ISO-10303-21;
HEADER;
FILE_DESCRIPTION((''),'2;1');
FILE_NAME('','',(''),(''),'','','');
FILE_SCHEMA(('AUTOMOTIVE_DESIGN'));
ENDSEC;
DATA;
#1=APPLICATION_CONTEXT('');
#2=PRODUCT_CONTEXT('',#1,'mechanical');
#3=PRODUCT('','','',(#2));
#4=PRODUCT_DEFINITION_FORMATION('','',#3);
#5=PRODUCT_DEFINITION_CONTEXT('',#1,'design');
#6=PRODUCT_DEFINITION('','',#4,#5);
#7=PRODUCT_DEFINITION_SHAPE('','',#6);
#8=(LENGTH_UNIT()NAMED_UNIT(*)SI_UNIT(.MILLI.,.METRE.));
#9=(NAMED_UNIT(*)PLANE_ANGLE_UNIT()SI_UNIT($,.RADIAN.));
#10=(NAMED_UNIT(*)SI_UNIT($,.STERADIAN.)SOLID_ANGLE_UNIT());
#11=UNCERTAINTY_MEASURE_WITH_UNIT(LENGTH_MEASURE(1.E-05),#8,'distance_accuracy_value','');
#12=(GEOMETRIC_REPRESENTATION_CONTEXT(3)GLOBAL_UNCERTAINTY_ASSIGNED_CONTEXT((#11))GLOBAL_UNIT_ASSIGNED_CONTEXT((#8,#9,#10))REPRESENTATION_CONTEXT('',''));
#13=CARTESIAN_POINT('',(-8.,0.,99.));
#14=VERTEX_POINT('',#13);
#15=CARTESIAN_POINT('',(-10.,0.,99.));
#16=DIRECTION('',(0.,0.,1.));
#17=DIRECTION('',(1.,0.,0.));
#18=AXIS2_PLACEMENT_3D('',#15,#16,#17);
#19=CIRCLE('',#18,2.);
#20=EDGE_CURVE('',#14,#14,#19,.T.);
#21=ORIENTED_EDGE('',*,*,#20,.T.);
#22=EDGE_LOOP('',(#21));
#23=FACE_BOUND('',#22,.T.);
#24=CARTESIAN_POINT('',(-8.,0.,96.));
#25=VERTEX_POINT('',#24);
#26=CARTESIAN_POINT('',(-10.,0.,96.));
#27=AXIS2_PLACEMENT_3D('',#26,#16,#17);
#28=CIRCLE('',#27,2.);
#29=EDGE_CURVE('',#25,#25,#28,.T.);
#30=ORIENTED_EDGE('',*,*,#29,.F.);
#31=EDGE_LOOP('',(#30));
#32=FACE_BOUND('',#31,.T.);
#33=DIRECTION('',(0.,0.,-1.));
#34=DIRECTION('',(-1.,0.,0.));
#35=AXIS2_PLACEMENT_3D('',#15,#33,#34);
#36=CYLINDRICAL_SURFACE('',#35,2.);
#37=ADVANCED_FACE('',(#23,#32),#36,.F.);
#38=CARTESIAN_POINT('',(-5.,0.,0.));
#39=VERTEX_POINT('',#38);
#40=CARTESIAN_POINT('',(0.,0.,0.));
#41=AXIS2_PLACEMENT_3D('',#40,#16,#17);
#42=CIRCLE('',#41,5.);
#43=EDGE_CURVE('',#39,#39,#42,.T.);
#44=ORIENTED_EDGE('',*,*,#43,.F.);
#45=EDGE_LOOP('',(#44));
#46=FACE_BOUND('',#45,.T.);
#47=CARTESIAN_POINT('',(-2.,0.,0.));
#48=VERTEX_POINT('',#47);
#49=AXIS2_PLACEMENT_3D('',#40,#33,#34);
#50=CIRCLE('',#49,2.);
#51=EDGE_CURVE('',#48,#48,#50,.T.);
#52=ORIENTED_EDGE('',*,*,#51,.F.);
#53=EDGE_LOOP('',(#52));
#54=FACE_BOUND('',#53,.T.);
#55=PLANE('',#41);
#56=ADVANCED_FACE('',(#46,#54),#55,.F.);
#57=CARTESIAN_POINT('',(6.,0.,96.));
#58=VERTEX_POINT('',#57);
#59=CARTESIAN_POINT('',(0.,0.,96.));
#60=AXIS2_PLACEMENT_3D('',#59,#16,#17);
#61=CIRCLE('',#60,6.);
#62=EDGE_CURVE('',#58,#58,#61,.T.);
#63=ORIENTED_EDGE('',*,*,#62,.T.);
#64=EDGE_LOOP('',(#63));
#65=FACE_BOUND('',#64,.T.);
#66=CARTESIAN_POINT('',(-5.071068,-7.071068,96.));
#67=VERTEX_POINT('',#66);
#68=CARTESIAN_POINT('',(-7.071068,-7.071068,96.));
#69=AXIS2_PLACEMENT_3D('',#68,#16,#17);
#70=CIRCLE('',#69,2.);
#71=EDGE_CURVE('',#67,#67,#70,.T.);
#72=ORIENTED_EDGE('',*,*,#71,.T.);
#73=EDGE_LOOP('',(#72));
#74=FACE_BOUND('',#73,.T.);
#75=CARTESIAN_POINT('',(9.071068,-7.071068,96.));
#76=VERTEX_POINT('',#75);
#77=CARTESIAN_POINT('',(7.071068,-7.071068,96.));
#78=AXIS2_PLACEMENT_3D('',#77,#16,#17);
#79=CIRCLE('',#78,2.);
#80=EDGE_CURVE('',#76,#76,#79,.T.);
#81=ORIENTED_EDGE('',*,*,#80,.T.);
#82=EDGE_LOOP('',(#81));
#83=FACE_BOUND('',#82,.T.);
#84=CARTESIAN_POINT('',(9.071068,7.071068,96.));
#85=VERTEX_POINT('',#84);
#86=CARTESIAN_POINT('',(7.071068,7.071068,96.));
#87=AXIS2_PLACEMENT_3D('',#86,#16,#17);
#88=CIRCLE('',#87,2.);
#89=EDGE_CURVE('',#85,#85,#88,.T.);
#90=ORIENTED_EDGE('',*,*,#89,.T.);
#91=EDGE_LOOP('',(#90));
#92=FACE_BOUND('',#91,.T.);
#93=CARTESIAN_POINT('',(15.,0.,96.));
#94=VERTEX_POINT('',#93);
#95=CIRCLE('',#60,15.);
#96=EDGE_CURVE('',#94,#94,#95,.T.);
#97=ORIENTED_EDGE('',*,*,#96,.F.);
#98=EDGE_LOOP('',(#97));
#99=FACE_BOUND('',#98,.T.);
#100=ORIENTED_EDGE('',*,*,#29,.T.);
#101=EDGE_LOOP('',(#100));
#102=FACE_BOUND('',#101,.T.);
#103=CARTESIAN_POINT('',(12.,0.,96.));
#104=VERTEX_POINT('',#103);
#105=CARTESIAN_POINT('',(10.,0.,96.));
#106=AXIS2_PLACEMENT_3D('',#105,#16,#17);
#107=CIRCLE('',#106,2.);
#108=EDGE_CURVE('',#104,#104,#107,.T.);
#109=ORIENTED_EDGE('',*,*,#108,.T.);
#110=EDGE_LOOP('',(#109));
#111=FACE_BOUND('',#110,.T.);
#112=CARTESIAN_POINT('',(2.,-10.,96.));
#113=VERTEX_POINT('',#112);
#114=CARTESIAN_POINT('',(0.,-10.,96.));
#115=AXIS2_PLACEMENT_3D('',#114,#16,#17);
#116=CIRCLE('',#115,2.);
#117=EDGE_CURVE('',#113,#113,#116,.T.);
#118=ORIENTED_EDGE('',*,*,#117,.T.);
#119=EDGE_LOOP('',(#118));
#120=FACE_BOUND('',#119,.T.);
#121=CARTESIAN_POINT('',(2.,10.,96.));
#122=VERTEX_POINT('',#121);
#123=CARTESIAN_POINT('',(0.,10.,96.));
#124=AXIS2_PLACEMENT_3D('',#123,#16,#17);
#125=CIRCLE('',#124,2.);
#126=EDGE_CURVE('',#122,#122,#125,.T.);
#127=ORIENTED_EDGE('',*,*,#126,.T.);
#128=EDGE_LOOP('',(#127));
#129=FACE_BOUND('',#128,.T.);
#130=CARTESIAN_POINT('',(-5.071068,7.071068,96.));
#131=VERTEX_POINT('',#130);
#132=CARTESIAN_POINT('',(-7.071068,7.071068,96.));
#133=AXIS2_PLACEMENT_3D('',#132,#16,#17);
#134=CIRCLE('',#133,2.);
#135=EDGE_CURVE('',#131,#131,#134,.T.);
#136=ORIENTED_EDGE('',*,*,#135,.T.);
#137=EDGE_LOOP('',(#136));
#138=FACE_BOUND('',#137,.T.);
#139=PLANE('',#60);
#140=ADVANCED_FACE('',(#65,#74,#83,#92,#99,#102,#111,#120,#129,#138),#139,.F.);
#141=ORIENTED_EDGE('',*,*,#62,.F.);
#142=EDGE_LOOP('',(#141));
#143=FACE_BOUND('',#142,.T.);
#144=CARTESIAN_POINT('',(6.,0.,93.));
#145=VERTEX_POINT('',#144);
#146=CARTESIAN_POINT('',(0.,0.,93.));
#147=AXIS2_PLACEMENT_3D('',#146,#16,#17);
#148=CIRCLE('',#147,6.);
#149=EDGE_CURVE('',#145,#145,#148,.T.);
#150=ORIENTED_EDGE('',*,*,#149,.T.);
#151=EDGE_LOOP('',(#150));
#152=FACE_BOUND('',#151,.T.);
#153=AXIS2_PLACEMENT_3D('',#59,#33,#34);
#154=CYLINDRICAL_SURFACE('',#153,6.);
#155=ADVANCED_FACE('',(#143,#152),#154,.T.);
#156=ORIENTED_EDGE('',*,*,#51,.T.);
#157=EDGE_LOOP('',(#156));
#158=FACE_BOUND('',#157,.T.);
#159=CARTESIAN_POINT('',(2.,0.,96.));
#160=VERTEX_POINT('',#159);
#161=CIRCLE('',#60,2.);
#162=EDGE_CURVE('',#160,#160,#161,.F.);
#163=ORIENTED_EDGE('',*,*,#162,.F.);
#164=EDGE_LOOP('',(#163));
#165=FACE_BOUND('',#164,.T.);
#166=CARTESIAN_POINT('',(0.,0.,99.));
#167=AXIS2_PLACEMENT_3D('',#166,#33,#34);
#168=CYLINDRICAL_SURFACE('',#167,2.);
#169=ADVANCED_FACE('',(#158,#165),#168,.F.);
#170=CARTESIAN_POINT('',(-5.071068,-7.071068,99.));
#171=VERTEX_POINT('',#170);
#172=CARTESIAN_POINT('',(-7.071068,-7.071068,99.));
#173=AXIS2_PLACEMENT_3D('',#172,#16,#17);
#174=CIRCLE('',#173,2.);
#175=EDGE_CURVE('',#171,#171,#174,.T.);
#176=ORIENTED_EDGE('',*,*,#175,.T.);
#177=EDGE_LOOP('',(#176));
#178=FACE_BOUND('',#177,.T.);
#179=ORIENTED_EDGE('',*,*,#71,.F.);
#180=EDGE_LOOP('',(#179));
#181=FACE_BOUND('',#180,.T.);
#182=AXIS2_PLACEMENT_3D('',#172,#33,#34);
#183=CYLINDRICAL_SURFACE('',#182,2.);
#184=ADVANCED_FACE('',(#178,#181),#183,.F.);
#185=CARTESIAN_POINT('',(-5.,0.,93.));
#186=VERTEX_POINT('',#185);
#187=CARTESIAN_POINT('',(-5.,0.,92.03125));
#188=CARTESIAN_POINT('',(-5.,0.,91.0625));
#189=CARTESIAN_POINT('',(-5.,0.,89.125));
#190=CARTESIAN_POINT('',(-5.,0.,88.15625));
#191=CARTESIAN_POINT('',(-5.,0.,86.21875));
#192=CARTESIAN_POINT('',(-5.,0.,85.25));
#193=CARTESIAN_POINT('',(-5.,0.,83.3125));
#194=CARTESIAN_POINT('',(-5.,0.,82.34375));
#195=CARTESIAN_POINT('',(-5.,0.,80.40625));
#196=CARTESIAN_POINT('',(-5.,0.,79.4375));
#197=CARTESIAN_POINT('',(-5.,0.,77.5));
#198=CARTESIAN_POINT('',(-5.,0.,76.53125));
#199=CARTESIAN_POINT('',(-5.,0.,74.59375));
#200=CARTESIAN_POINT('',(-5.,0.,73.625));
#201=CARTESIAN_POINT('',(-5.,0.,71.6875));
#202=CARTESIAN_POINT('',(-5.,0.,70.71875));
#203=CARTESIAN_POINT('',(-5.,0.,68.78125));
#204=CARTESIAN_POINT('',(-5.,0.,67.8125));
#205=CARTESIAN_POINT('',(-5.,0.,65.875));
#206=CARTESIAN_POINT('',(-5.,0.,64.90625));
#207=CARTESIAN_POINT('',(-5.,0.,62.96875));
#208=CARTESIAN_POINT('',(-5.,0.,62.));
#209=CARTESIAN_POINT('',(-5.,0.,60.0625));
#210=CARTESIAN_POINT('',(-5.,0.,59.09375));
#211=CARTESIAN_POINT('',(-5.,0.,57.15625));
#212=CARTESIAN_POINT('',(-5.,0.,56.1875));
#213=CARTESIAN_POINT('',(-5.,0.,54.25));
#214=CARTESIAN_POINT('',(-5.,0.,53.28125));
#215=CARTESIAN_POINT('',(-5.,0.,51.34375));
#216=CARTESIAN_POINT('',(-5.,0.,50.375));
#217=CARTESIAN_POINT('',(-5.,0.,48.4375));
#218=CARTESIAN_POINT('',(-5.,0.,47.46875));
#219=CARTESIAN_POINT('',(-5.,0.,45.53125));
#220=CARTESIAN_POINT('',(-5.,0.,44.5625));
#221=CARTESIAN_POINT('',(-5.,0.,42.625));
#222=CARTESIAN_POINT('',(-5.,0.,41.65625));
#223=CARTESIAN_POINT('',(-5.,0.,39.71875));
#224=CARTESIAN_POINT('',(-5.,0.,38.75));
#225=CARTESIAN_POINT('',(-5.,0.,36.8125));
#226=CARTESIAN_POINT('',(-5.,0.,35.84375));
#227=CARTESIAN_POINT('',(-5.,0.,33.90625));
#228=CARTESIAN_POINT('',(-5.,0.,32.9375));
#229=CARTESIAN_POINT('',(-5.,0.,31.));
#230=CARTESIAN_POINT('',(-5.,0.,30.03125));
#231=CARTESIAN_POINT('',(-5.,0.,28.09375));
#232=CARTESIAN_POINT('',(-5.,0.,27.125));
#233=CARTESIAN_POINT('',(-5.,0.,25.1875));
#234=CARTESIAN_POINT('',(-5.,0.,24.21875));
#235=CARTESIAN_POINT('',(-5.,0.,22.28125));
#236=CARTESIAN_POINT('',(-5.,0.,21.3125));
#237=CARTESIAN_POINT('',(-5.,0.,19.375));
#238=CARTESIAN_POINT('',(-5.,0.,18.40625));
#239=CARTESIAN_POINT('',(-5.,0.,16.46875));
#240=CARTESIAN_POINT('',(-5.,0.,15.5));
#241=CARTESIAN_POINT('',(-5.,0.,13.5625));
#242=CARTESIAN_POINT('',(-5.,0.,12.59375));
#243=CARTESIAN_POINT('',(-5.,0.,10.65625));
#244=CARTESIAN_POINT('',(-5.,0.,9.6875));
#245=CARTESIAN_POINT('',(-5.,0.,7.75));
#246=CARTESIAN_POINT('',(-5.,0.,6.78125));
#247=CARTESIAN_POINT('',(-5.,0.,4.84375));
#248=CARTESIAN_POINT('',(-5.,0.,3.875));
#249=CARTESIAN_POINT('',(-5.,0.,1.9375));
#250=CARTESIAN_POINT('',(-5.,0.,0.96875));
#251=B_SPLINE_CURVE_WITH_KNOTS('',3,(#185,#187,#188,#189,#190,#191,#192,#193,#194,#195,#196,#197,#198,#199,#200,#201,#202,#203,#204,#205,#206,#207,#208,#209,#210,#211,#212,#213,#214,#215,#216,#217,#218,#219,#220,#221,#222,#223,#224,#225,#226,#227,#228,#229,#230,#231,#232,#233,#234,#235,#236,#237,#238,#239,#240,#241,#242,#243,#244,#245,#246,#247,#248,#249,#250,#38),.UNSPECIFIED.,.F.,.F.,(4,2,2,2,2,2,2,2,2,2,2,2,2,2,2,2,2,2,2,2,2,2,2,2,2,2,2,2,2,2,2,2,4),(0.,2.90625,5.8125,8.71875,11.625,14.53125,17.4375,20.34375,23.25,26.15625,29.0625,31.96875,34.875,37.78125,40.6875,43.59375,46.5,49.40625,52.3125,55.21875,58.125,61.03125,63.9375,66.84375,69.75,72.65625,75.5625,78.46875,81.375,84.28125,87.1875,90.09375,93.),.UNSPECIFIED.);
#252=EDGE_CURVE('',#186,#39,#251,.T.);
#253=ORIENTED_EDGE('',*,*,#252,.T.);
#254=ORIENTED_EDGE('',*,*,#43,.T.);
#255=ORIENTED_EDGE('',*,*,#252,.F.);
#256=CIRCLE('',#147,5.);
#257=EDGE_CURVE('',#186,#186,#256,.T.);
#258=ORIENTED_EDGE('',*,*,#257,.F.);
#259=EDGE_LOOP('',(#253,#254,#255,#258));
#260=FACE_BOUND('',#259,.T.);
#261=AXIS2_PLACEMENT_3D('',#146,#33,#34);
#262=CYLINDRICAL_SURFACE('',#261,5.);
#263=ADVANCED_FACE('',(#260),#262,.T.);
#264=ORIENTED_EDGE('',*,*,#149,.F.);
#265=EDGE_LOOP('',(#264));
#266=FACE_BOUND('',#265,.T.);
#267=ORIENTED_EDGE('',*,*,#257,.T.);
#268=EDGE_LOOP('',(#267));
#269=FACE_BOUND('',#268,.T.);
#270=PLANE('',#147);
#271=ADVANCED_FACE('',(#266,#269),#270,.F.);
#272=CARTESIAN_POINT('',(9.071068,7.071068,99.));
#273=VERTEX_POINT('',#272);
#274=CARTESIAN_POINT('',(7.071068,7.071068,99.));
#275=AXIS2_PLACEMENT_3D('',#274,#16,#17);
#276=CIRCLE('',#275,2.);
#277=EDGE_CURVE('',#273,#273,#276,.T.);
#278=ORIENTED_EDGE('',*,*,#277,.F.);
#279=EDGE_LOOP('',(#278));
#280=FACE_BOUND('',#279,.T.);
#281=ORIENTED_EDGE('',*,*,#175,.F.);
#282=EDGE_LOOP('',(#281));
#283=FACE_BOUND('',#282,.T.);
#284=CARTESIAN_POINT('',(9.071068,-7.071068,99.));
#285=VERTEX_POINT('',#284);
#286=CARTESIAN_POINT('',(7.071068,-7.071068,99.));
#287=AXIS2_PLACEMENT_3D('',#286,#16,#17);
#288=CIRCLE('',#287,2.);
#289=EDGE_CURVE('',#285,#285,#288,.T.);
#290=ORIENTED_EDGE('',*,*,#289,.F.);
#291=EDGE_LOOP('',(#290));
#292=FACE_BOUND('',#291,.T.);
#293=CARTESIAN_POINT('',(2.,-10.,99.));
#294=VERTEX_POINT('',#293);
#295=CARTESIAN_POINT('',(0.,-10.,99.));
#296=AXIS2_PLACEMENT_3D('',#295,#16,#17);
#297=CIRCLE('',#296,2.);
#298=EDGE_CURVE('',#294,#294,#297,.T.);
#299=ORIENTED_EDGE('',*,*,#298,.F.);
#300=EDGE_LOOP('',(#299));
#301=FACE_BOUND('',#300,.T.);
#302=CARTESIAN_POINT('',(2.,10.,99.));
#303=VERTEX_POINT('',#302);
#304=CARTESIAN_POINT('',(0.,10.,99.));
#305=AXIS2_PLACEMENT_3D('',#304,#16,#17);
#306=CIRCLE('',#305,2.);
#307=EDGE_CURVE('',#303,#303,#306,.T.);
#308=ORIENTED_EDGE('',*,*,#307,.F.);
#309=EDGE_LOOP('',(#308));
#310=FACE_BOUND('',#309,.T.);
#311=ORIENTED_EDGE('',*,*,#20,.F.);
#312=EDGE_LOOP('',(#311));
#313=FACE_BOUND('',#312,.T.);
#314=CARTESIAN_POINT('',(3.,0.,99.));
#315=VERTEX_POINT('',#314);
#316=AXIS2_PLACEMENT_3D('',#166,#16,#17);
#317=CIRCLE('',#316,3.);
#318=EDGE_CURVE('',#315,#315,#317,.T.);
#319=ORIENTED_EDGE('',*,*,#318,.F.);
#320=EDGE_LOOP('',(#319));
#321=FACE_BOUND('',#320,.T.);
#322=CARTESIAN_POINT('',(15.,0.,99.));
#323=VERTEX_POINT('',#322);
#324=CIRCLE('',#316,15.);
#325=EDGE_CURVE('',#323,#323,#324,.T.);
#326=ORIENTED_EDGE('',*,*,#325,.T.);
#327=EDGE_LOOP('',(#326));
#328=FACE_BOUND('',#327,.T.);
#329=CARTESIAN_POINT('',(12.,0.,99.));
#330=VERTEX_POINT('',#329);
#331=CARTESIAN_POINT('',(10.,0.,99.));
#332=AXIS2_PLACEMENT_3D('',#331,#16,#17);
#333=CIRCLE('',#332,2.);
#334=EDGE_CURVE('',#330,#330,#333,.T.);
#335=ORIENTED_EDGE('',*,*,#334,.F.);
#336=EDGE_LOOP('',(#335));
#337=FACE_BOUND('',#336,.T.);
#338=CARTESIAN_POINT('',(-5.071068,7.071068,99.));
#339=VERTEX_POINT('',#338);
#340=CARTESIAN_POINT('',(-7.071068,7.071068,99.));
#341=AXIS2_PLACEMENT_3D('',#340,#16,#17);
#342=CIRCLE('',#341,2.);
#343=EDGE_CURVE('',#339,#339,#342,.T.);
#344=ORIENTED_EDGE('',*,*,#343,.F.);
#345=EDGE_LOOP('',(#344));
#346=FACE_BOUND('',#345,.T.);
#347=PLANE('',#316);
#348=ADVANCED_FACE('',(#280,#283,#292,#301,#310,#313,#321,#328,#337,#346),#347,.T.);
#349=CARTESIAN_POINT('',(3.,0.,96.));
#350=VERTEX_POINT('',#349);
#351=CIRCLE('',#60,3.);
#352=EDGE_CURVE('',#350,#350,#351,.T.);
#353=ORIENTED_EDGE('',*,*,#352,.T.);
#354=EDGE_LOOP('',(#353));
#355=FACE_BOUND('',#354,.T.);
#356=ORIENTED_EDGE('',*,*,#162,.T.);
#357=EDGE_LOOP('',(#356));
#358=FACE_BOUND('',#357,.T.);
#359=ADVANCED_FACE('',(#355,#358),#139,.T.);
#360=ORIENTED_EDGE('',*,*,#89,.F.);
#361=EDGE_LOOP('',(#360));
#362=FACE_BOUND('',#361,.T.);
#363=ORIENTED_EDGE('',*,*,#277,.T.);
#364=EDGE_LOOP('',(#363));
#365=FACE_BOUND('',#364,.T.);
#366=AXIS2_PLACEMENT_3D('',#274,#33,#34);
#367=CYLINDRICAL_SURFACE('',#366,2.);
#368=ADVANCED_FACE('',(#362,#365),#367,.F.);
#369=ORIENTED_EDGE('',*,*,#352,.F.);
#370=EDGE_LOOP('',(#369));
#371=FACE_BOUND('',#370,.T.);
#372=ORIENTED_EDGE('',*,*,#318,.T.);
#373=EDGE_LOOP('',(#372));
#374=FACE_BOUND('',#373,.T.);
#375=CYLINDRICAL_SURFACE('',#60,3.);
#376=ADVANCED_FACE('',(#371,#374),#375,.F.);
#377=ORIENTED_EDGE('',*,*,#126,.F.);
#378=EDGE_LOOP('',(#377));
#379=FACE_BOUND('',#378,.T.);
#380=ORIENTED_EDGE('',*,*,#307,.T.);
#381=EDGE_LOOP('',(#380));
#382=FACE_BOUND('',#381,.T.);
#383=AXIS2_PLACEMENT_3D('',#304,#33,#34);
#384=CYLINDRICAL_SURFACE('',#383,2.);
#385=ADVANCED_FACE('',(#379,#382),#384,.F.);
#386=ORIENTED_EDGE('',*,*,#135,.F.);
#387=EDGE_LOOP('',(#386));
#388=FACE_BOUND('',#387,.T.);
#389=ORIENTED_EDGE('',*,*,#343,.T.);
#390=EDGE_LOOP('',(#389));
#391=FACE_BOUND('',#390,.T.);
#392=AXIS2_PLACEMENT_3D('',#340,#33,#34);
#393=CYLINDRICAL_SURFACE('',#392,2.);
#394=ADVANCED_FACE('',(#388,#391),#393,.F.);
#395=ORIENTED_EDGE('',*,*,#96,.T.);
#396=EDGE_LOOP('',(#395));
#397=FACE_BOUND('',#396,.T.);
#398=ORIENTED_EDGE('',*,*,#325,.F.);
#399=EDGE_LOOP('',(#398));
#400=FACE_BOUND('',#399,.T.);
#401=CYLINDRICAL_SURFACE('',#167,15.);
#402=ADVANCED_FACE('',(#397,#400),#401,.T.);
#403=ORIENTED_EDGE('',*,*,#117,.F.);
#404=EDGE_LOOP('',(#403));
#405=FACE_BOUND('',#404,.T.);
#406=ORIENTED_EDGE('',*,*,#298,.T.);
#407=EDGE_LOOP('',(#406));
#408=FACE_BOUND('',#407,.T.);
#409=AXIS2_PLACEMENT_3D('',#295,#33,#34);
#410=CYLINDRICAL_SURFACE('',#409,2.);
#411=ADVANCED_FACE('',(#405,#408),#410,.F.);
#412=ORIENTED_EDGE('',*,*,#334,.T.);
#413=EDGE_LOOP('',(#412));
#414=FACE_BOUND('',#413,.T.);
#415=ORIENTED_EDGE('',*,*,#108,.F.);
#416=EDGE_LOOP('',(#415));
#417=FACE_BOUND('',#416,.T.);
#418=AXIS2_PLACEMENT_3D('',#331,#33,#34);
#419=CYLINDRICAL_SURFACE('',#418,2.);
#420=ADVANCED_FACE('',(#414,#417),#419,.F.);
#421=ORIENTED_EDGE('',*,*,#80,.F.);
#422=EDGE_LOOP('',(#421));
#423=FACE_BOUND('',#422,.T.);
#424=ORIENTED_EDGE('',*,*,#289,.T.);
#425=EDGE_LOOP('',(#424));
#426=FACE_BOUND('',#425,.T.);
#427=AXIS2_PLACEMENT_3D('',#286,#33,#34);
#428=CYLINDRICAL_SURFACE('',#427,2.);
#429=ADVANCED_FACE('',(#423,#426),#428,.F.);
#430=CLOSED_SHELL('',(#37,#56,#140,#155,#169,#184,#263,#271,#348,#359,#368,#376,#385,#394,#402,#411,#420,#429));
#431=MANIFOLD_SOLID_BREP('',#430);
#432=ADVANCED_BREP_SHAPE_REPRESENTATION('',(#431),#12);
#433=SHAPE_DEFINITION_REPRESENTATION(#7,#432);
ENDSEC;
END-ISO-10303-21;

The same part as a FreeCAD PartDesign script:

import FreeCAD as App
import Part
import Sketcher
Q = App.Units.Quantity

doc = App.newDocument("Part")
body = doc.addObject("PartDesign::Body", "Body")

# Sketch on XY plane
sketch1 = body.newObject("Sketcher::SketchObject", "Sketch")
sketch1.AttachmentSupport = (doc.getObject("XY_Plane"), [""])
sketch1.MapMode = "FlatFace"
sketch1.addGeometry(Part.Circle(App.Vector(0, 0, 0), App.Vector(0, 0, 1), 5), False)
sketch1.addConstraint(Sketcher.Constraint("Coincident", 0, 3, -1, 1))
sketch1.addConstraint(Sketcher.Constraint("Diameter", 0, Q("10 mm")))
pad1 = body.newObject("PartDesign::Pad", "Pad")
pad1.Profile = sketch1
pad1.Length = 93

# Sketch on XY plane
sketch2 = body.newObject("Sketcher::SketchObject", "Sketch001")
sketch2.AttachmentSupport = (doc.getObject("XY_Plane"), [""])
sketch2.MapMode = "FlatFace"
sketch2.AttachmentOffset = App.Placement(App.Vector(0, 0, 93), App.Rotation())
sketch2.addGeometry(Part.Circle(App.Vector(0, 0, 0), App.Vector(0, 0, 1), 6), False)
sketch2.addConstraint(Sketcher.Constraint("Coincident", 0, 3, -1, 1))
sketch2.addConstraint(Sketcher.Constraint("Diameter", 0, Q("12 mm")))
pad2 = body.newObject("PartDesign::Pad", "Pad001")
pad2.Profile = sketch2
pad2.Length = 3

# Sketch on XY plane
sketch3 = body.newObject("Sketcher::SketchObject", "Sketch002")
sketch3.AttachmentSupport = (doc.getObject("XY_Plane"), [""])
sketch3.MapMode = "FlatFace"
sketch3.AttachmentOffset = App.Placement(App.Vector(0, 0, 96), App.Rotation())
sketch3.addGeometry(Part.Circle(App.Vector(0, 0, 0), App.Vector(0, 0, 1), 15), False)
sketch3.addGeometry(Part.Circle(App.Vector(-7.1, -7.1, 0), App.Vector(0, 0, 1), 2), False)
sketch3.addGeometry(Part.Circle(App.Vector(0, -10, 0), App.Vector(0, 0, 1), 2), False)
sketch3.addGeometry(Part.Circle(App.Vector(7.1, -7.1, 0), App.Vector(0, 0, 1), 2), False)
sketch3.addGeometry(Part.Circle(App.Vector(-10, 0, 0), App.Vector(0, 0, 1), 2), False)
sketch3.addGeometry(Part.Circle(App.Vector(-7.1, 7.1, 0), App.Vector(0, 0, 1), 2), False)
sketch3.addGeometry(Part.Circle(App.Vector(10, 0, 0), App.Vector(0, 0, 1), 2), False)
sketch3.addGeometry(Part.Circle(App.Vector(0, 10, 0), App.Vector(0, 0, 1), 2), False)
sketch3.addGeometry(Part.Circle(App.Vector(7.1, 7.1, 0), App.Vector(0, 0, 1), 2), False)
sketch3.addConstraint(Sketcher.Constraint("Coincident", 0, 3, -1, 1))
sketch3.addConstraint(Sketcher.Constraint("Equal", 1, 2))
sketch3.addConstraint(Sketcher.Constraint("Equal", 2, 3))
sketch3.addConstraint(Sketcher.Constraint("Equal", 3, 4))
sketch3.addConstraint(Sketcher.Constraint("Equal", 4, 5))
sketch3.addConstraint(Sketcher.Constraint("Equal", 5, 6))
sketch3.addConstraint(Sketcher.Constraint("Equal", 6, 7))
sketch3.addConstraint(Sketcher.Constraint("Equal", 7, 8))
sketch3.addConstraint(Sketcher.Constraint("Symmetric", 3, 3, 5, 3, -1, 1))
sketch3.addConstraint(Sketcher.Constraint("Symmetric", 4, 3, 6, 3, -1, 1))
sketch3.addConstraint(Sketcher.Constraint("Symmetric", 2, 3, 7, 3, -1, 1))
sketch3.addConstraint(Sketcher.Constraint("Symmetric", 1, 3, 8, 3, -1, 1))
sketch3.addConstraint(Sketcher.Constraint("Symmetric", 1, 3, 3, 3, -2))
sketch3.addConstraint(Sketcher.Constraint("PointOnObject", 2, 3, -2))
sketch3.addConstraint(Sketcher.Constraint("PointOnObject", 4, 3, -1))
sketch3.addConstraint(Sketcher.Constraint("Diameter", 0, Q("30 mm")))
sketch3.addConstraint(Sketcher.Constraint("Diameter", 1, Q("4 mm")))
sketch3.addConstraint(Sketcher.Constraint("DistanceY", 2, 3, -1, 1, Q("10 mm")))
sketch3.addConstraint(Sketcher.Constraint("DistanceX", 4, 3, -1, 1, Q("10 mm")))
sketch3.addConstraint(Sketcher.Constraint("DistanceX", 1, 3, -1, 1, Q("7.071068 mm")))
sketch3.addConstraint(Sketcher.Constraint("DistanceY", 1, 3, -1, 1, Q("7.071068 mm")))
pad3 = body.newObject("PartDesign::Pad", "Pad002")
pad3.Profile = sketch3
pad3.Length = 3

# Sketch on XY plane
sketch4 = body.newObject("Sketcher::SketchObject", "Sketch003")
sketch4.AttachmentSupport = (doc.getObject("XY_Plane"), [""])
sketch4.MapMode = "FlatFace"
sketch4.addGeometry(Part.Circle(App.Vector(0, 0, 0), App.Vector(0, 0, 1), 2), False)
sketch4.addConstraint(Sketcher.Constraint("Coincident", 0, 3, -1, 1))
sketch4.addConstraint(Sketcher.Constraint("Diameter", 0, Q("4 mm")))
pocket1 = body.newObject("PartDesign::Pocket", "Pocket")
pocket1.Profile = sketch4
pocket1.Type = "ThroughAll"
pocket1.Reversed = True

# Sketch on XY plane
sketch5 = body.newObject("Sketcher::SketchObject", "Sketch004")
sketch5.AttachmentSupport = (doc.getObject("XY_Plane"), [""])
sketch5.MapMode = "FlatFace"
sketch5.AttachmentOffset = App.Placement(App.Vector(0, 0, 99), App.Rotation())
sketch5.addGeometry(Part.Circle(App.Vector(0, 0, 0), App.Vector(0, 0, 1), 3), False)
sketch5.addConstraint(Sketcher.Constraint("Coincident", 0, 3, -1, 1))
sketch5.addConstraint(Sketcher.Constraint("Diameter", 0, Q("6 mm")))
pocket2 = body.newObject("PartDesign::Pocket", "Pocket001")
pocket2.Profile = sketch5
pocket2.Length = 3

doc.recompute()
